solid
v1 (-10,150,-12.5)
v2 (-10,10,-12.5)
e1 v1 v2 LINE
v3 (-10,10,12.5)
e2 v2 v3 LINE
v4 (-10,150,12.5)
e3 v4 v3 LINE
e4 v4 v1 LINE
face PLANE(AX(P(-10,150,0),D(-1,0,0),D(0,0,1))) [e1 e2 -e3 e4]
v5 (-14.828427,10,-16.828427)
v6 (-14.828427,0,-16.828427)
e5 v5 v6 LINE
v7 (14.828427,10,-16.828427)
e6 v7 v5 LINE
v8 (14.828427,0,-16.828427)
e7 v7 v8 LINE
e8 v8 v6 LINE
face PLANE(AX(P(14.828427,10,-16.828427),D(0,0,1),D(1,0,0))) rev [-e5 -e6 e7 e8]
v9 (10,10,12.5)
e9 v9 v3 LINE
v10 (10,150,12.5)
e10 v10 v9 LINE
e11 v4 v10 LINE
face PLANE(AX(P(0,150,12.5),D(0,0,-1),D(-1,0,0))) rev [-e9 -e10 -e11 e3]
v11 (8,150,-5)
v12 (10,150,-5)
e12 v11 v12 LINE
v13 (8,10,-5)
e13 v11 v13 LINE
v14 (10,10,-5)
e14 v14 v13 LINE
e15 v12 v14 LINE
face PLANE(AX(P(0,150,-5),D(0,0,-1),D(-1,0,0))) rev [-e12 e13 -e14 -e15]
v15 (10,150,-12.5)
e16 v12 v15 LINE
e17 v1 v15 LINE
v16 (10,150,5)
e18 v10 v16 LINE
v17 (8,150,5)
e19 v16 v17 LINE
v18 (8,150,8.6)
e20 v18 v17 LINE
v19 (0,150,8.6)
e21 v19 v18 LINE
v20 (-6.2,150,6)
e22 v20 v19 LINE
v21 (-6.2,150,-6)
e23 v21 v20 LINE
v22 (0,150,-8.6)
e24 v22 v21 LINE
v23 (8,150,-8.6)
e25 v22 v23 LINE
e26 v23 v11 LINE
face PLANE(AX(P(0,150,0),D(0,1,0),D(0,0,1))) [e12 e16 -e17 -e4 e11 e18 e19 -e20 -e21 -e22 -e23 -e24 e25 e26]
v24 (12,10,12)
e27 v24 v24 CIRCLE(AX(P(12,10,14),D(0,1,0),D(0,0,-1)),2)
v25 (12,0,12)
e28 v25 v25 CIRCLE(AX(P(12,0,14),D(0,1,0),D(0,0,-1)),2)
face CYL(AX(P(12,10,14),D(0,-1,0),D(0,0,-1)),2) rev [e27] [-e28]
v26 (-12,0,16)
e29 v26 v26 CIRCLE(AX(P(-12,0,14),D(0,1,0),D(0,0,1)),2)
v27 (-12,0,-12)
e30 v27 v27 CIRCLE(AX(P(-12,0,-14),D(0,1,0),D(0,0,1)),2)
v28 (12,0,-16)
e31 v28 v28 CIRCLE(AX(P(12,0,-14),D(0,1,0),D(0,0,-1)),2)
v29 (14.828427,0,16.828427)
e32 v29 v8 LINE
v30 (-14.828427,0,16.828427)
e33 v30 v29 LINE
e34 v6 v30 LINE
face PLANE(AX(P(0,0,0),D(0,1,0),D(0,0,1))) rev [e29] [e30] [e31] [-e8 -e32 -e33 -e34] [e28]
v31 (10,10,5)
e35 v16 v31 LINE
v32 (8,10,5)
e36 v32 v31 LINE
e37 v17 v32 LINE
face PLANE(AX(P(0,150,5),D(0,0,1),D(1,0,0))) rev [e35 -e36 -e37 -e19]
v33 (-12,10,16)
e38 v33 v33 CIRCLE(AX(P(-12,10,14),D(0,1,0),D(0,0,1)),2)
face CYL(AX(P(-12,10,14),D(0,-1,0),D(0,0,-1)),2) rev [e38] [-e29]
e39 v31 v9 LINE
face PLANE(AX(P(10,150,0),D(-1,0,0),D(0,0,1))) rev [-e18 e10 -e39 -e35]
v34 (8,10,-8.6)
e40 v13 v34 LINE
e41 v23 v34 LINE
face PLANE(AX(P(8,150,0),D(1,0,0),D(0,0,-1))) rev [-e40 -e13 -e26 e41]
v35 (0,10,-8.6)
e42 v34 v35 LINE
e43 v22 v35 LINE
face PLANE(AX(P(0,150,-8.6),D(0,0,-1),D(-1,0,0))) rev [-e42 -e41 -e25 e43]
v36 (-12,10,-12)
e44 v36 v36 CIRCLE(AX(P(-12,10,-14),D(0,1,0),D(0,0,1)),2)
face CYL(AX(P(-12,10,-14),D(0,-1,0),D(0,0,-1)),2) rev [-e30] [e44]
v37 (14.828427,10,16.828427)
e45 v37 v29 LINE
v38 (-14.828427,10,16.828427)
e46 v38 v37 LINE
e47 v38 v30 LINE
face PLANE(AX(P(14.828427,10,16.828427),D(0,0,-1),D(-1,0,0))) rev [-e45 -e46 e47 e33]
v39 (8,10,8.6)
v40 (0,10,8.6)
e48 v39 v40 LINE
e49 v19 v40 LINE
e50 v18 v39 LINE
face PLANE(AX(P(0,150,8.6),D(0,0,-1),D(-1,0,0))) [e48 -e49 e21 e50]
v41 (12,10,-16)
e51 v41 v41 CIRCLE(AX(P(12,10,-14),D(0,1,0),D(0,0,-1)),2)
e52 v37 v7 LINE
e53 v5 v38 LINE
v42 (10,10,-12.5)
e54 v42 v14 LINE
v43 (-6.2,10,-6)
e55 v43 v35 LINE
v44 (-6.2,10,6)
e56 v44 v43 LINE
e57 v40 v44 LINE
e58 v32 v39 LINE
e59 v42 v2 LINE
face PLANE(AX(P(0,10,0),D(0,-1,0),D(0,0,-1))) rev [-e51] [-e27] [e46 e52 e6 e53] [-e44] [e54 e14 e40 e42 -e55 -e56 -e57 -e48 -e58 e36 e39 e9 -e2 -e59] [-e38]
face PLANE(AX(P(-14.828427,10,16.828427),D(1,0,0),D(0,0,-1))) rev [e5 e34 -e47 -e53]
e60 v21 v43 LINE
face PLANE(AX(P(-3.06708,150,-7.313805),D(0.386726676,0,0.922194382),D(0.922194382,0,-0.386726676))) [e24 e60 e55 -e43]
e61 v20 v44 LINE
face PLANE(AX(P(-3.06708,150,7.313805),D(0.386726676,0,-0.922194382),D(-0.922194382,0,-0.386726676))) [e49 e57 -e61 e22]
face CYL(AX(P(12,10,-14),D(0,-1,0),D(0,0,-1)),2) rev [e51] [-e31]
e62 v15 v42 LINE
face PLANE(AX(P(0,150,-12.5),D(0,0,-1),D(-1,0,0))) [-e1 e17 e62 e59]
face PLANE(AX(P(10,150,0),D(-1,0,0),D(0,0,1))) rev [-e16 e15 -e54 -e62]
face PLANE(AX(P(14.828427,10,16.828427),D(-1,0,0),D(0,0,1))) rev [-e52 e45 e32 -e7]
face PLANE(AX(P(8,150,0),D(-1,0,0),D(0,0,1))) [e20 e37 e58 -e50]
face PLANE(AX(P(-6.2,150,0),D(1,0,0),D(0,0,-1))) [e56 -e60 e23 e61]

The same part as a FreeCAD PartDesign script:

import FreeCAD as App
import Part
import Sketcher

V = App.Vector
Q = App.Units.Quantity


def add_polygon(sketch, points):
    """Adds a closed chain of lines whose ends are joined by coincident constraints."""
    first, n = sketch.GeometryCount, len(points)
    for a, b in zip(points, points[1:] + points[:1]):
        sketch.addGeometry(Part.LineSegment(App.Vector(*a, 0), App.Vector(*b, 0)), False)
    for i in range(n):
        sketch.addConstraint(Sketcher.Constraint("Coincident", first + i, 2, first + (i + 1) % n, 1))

doc = App.newDocument("Part")
body = doc.addObject("PartDesign::Body", "Body")

sketch1 = doc.addObject("Sketcher::SketchObject", "Sketch")
body.addObject(sketch1)
sketch1.AttachmentSupport = (doc.XZ_Plane, [""])
sketch1.MapMode = "FlatFace"
add_polygon(sketch1, [(-10, -12.5), (-10, 12.5), (10, 12.5), (10, 5), (8, 5), (8, 8.6), (0, 8.6), (-6.2, 6), (-6.2, -6), (0, -8.6), (8, -8.6), (8, -5), (10, -5), (10, -12.5)])
sketch1.addConstraint(Sketcher.Constraint("Vertical", 0))
sketch1.addConstraint(Sketcher.Constraint("Horizontal", 1))
sketch1.addConstraint(Sketcher.Constraint("Vertical", 2))
sketch1.addConstraint(Sketcher.Constraint("Horizontal", 3))
sketch1.addConstraint(Sketcher.Constraint("Vertical", 4))
sketch1.addConstraint(Sketcher.Constraint("Horizontal", 5))
sketch1.addConstraint(Sketcher.Constraint("Vertical", 7))
sketch1.addConstraint(Sketcher.Constraint("Horizontal", 9))
sketch1.addConstraint(Sketcher.Constraint("Vertical", 10))
sketch1.addConstraint(Sketcher.Constraint("Horizontal", 11))
sketch1.addConstraint(Sketcher.Constraint("Vertical", 12))
sketch1.addConstraint(Sketcher.Constraint("Horizontal", 13))
sketch1.addConstraint(Sketcher.Constraint("Symmetric", 5, 2, 8, 2, -1, 1))
sketch1.addConstraint(Sketcher.Constraint("Symmetric", 0, 2, 12, 2, -1, 1))
sketch1.addConstraint(Sketcher.Constraint("Symmetric", 3, 2, 10, 2, -1))
sketch1.addConstraint(Sketcher.Constraint("PointOnObject", 5, 2, -2))
sketch1.addConstraint(Sketcher.Constraint("Vertical", 2, 2, 11, 2))
sketch1.addConstraint(Sketcher.Constraint("Equal", 6, 8))
sketch1.addConstraint(Sketcher.Constraint("DistanceX", 1, 1, 1, 2, Q("20 mm")))
sketch1.addConstraint(Sketcher.Constraint("DistanceX", 3, 2, 3, 1, Q("2 mm")))
sketch1.addConstraint(Sketcher.Constraint("DistanceY", 0, 1, 0, 2, Q("25 mm")))
sketch1.addConstraint(Sketcher.Constraint("DistanceY", 7, 2, 7, 1, Q("12 mm")))
sketch1.addConstraint(Sketcher.Constraint("DistanceY", 2, 2, 2, 1, Q("7.5 mm")))
sketch1.addConstraint(Sketcher.Constraint("DistanceY", 4, 1, 4, 2, Q("3.6 mm")))
sketch1.addConstraint(Sketcher.Constraint("DistanceX", 6, 2, -1, 1, Q("6.2 mm")))
pad1 = doc.addObject("PartDesign::Pad", "Pad")
body.addObject(pad1)
pad1.Profile = sketch1
pad1.Length = 150
pad1.Reversed = True

sketch2 = doc.addObject("Sketcher::SketchObject", "Sketch001")
body.addObject(sketch2)
sketch2.AttachmentSupport = (doc.XZ_Plane, [""])
sketch2.MapMode = "FlatFace"
add_polygon(sketch2, [(-14.8, -16.8), (-14.8, 16.8), (14.8, 16.8), (14.8, -16.8)])
sketch2.addGeometry(Part.Circle(V(-12, 14, 0), V(0, 0, 1), 2), False)
sketch2.addGeometry(Part.Circle(V(12, 14, 0), V(0, 0, 1), 2), False)
sketch2.addGeometry(Part.Circle(V(-12, -14, 0), V(0, 0, 1), 2), False)
sketch2.addGeometry(Part.Circle(V(12, -14, 0), V(0, 0, 1), 2), False)
sketch2.addConstraint(Sketcher.Constraint("Vertical", 0))
sketch2.addConstraint(Sketcher.Constraint("Horizontal", 1))
sketch2.addConstraint(Sketcher.Constraint("Vertical", 2))
sketch2.addConstraint(Sketcher.Constraint("Horizontal", 3))
sketch2.addConstraint(Sketcher.Constraint("Equal", 4, 5))
sketch2.addConstraint(Sketcher.Constraint("Equal", 5, 6))
sketch2.addConstraint(Sketcher.Constraint("Equal", 6, 7))
sketch2.addConstraint(Sketcher.Constraint("Symmetric", 5, 3, 6, 3, -1, 1))
sketch2.addConstraint(Sketcher.Constraint("Symmetric", 4, 3, 7, 3, -1, 1))
sketch2.addConstraint(Sketcher.Constraint("Symmetric", 0, 2, 2, 2, -1, 1))
sketch2.addConstraint(Sketcher.Constraint("Symmetric", 4, 3, 5, 3, -2))
sketch2.addConstraint(Sketcher.Constraint("Diameter", 4, Q("4 mm")))
sketch2.addConstraint(Sketcher.Constraint("DistanceX", 4, 3, -1, 1, Q("12 mm")))
sketch2.addConstraint(Sketcher.Constraint("DistanceY", -1, 1, 4, 3, Q("14 mm")))
sketch2.addConstraint(Sketcher.Constraint("DistanceX", 1, 1, 1, 2, Q("29.656854 mm")))
sketch2.addConstraint(Sketcher.Constraint("DistanceY", 0, 1, 0, 2, Q("33.656854 mm")))
pad2 = doc.addObject("PartDesign::Pad", "Pad001")
body.addObject(pad2)
pad2.Profile = sketch2
pad2.Length = 10
pad2.Reversed = True

doc.recompute()
